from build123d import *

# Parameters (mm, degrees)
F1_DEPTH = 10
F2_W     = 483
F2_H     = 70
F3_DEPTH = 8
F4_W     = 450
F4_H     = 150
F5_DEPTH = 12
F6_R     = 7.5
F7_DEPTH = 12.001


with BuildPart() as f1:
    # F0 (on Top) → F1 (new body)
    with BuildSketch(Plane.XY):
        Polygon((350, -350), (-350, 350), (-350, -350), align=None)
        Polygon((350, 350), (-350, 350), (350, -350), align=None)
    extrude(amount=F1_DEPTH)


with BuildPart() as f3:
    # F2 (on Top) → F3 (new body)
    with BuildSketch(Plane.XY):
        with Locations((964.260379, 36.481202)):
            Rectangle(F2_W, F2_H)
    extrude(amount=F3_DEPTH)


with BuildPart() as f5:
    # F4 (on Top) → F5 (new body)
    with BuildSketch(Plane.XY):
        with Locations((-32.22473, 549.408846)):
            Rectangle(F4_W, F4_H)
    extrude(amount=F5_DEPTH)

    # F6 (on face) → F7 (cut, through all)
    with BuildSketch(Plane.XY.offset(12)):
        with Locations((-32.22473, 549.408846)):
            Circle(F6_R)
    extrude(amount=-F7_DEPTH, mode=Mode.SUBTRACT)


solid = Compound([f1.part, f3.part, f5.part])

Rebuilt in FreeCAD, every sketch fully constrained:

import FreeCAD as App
import Part
import Sketcher
from FreeCAD import Vector


def add_polygon(sketch, points):
    """Adds a closed chain of lines whose ends are joined by coincident constraints."""
    first, n = sketch.GeometryCount, len(points)
    for a, b in zip(points, points[1:] + points[:1]):
        sketch.addGeometry(Part.LineSegment(App.Vector(*a, 0), App.Vector(*b, 0)), False)
    for i in range(n):
        sketch.addConstraint(Sketcher.Constraint("Coincident", first + i, 2, first + (i + 1) % n, 1))

doc = App.newDocument("Part")
body = doc.addObject("PartDesign::Body", "Body")

sketch1 = body.newObject("Sketcher::SketchObject", "Sketch")
sketch1.AttachmentSupport = (doc.getObject("XY_Plane"), [""])
sketch1.MapMode = "FlatFace"
add_polygon(sketch1, [(-350, 350), (-350, -350), (350, -350), (350, 350)])
sketch1.addConstraint([
    Sketcher.Constraint("Vertical", 0),
    Sketcher.Constraint("Horizontal", 1),
    Sketcher.Constraint("Vertical", 2),
    Sketcher.Constraint("Horizontal", 3),
    Sketcher.Constraint("Symmetric", 0, 2, 2, 2, -1, 1),
    Sketcher.Constraint("Equal", 3, 0),
    Sketcher.Constraint("DistanceX", 1, 1, 1, 2, 700.0),
])
pad1 = body.newObject("PartDesign::Pad", "Pad")
pad1.Profile = sketch1
pad1.Length = 10
body2 = doc.addObject("PartDesign::Body", "Body001")

sketch2 = body2.newObject("Sketcher::SketchObject", "Sketch001")
sketch2.AttachmentSupport = (doc.getObject("XY_Plane001"), [""])
sketch2.MapMode = "FlatFace"
add_polygon(sketch2, [(722.760379, 71.481202), (722.760379, 1.481202), (1205.760379, 1.481202), (1205.760379, 71.481202)])
sketch2.addConstraint([
    Sketcher.Constraint("Vertical", 0),
    Sketcher.Constraint("Horizontal", 1),
    Sketcher.Constraint("Vertical", 2),
    Sketcher.Constraint("Horizontal", 3),
    Sketcher.Constraint("DistanceX", 1, 1, 1, 2, 483.0),
    Sketcher.Constraint("DistanceY", 0, 2, 0, 1, 70.0),
    Sketcher.Constraint("DistanceY", -1, 1, 0, 2, 1.481202),
    Sketcher.Constraint("DistanceX", -1, 1, 0, 2, 722.760379),
])
pad2 = body2.newObject("PartDesign::Pad", "Pad001")
pad2.Profile = sketch2
pad2.Length = 8
body3 = doc.addObject("PartDesign::Body", "Body002")

sketch3 = body3.newObject("Sketcher::SketchObject", "Sketch002")
sketch3.AttachmentSupport = (doc.getObject("XY_Plane002"), [""])
sketch3.MapMode = "FlatFace"
add_polygon(sketch3, [(-257.22473, 624.408846), (-257.22473, 474.408846), (192.77527, 474.408846), (192.77527, 624.408846)])
sketch3.addConstraint([
    Sketcher.Constraint("Vertical", 0),
    Sketcher.Constraint("Horizontal", 1),
    Sketcher.Constraint("Vertical", 2),
    Sketcher.Constraint("Horizontal", 3),
    Sketcher.Constraint("DistanceX", 1, 1, 1, 2, 450.0),
    Sketcher.Constraint("DistanceY", 0, 2, 0, 1, 150.0),
    Sketcher.Constraint("DistanceX", 0, 2, -1, 1, 257.22473),
    Sketcher.Constraint("DistanceY", -1, 1, 0, 2, 474.408846),
])
pad3 = body3.newObject("PartDesign::Pad", "Pad002")
pad3.Profile = sketch3
pad3.Length = 12

sketch4 = body3.newObject("Sketcher::SketchObject", "Sketch003")
sketch4.AttachmentSupport = (doc.getObject("XY_Plane002"), [""])
sketch4.MapMode = "FlatFace"
sketch4.AttachmentOffset = App.Placement(Vector(0, 0, 12), App.Rotation())
sketch4.addGeometry(Part.Circle(Vector(-32.22473, 549.408846, 0), Vector(0, 0, 1), 7.5), False)
sketch4.addConstraint([
    Sketcher.Constraint("Diameter", 0, 15.0),
    Sketcher.Constraint("DistanceX", 0, 3, -1, 1, 32.22473),
    Sketcher.Constraint("DistanceY", -1, 1, 0, 3, 549.408846),
])
pocket1 = body3.newObject("PartDesign::Pocket", "Pocket")
pocket1.Profile = sketch4
pocket1.Type = "ThroughAll"

doc.recompute()
